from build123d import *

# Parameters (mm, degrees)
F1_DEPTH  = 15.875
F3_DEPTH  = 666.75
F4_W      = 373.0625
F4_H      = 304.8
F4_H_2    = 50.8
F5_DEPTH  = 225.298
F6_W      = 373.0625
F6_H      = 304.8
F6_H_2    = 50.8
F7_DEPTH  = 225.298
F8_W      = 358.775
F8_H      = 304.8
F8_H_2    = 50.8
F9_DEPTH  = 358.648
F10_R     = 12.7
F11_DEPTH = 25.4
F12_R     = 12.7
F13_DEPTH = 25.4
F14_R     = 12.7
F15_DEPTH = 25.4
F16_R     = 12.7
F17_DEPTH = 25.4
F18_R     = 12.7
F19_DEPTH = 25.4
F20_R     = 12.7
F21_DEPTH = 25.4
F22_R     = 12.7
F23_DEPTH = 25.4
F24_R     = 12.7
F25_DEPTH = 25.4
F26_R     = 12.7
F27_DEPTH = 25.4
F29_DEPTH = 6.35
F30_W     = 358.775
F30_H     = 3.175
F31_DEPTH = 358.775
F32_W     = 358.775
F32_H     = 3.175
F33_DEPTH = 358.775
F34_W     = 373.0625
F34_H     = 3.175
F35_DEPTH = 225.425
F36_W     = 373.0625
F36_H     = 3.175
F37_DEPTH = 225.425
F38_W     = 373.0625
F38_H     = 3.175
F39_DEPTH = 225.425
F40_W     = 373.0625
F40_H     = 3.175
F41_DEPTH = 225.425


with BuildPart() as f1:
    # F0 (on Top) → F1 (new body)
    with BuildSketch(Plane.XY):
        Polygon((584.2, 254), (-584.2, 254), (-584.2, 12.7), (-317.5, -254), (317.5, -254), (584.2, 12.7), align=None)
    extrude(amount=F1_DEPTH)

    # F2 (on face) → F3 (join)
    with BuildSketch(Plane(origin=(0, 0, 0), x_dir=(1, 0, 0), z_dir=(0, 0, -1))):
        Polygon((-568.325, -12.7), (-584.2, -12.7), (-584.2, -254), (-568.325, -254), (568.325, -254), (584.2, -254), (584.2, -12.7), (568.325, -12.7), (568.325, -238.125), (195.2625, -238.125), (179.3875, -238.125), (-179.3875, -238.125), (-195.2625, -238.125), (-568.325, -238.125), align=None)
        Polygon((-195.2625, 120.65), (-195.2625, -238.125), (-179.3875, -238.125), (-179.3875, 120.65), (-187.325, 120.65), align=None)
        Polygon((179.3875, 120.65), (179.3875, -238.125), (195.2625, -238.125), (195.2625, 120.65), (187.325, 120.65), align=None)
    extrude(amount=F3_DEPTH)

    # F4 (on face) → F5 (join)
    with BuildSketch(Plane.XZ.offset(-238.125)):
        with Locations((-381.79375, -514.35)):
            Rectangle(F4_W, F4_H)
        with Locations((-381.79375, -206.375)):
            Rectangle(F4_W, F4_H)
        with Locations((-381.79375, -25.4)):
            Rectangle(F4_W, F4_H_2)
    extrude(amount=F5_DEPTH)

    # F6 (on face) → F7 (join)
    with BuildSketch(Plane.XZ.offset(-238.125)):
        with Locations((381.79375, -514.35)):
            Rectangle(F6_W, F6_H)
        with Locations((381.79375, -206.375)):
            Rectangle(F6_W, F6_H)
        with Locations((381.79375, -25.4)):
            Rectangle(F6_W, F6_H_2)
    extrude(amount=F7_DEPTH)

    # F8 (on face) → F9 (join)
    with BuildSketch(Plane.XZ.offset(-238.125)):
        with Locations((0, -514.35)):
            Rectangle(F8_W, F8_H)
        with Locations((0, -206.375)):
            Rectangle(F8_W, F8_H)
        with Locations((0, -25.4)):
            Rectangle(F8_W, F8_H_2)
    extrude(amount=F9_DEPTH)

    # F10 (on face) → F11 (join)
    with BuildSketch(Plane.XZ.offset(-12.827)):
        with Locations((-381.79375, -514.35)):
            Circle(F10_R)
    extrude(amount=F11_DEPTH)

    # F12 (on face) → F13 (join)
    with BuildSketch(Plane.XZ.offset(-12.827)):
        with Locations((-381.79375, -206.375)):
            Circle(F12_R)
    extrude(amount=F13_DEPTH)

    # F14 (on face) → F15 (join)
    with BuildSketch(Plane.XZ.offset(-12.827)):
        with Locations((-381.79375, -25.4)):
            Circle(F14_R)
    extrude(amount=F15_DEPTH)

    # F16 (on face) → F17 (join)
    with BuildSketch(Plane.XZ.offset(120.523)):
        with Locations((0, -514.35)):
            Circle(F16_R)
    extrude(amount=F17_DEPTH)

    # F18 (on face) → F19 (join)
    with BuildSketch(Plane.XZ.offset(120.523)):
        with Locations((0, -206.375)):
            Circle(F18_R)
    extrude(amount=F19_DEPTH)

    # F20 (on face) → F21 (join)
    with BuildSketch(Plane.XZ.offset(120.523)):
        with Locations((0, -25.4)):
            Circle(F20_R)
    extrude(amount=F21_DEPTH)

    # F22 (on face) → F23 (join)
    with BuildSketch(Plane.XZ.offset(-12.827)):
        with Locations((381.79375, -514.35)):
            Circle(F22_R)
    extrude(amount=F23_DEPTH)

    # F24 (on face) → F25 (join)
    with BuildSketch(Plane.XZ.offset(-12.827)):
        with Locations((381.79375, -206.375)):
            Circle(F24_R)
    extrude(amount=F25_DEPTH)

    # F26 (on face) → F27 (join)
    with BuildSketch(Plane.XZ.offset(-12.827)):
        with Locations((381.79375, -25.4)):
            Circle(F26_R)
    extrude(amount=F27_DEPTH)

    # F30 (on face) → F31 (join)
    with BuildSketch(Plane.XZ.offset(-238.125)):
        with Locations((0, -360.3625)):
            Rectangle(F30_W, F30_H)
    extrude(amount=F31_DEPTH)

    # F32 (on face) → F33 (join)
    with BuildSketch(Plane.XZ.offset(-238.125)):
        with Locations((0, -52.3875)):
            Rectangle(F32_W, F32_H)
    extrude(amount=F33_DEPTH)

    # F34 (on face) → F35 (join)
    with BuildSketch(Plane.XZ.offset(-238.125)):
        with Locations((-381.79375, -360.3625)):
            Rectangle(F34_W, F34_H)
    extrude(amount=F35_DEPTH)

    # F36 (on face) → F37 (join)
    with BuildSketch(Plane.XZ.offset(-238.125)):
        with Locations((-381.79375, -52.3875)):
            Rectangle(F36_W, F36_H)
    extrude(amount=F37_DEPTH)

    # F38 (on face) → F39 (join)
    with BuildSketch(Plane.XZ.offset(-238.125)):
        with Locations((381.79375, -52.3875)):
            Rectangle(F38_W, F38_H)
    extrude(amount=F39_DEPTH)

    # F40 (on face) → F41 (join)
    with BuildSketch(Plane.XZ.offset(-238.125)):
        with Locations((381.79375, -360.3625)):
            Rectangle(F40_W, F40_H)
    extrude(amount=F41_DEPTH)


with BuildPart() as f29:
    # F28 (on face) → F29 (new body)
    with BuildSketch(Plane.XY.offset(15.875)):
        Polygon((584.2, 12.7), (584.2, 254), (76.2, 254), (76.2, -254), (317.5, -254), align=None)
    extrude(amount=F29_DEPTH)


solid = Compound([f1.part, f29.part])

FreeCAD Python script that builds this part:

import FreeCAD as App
import Part
import Sketcher

V = App.Vector
Q = App.Units.Quantity

doc = App.newDocument("Part")
params = doc.addObject("Spreadsheet::Sheet", "Params")
for row, (alias, value) in enumerate([
    ("sketch1_width", "46 in"),
    ("sketch1_width2", "25 in"),
    ("sketch1_height", "9.5 in"),
    ("pad1_length", "0.625 in"),
    ("sketch2_width", "46 in"),
    ("sketch2_height", "9.5 in"),
    ("sketch2_width2", "0.625 in"),
    ("sketch2_width3", "14.6875 in"),
    ("sketch2_height2", "8.875 in"),
    ("pad2_length", "26.25 in"),
    ("sketch3_height", "12 in"),
    ("sketch3_height2", "2 in"),
    ("sketch3_width", "14.6875 in"),
    ("pad3_length", "8.87 in"),
    ("sketch4_height", "12 in"),
    ("sketch4_height2", "2 in"),
    ("sketch4_width", "14.6875 in"),
    ("pad4_length", "8.87 in"),
    ("sketch5_height", "12 in"),
    ("sketch5_height2", "2 in"),
    ("sketch5_width", "14.125 in"),
    ("pad5_length", "14.12 in"),
    ("sketch6_diameter", "1 in"),
    ("pad6_length", "1 in"),
    ("sketch7_diameter", "1 in"),
    ("pad7_length", "1 in"),
    ("sketch8_diameter", "1 in"),
    ("pad8_length", "1 in"),
    ("sketch9_diameter", "1 in"),
    ("pad9_length", "1 in"),
    ("sketch10_diameter", "1 in"),
    ("pad10_length", "1 in"),
    ("sketch11_diameter", "1 in"),
    ("pad11_length", "1 in"),
    ("sketch12_diameter", "1 in"),
    ("pad12_length", "1 in"),
    ("sketch13_diameter", "1 in"),
    ("pad13_length", "1 in"),
    ("sketch14_diameter", "1 in"),
    ("pad14_length", "1 in"),
    ("sketch15_width", "14.125 in"),
    ("sketch15_height", "0.125 in"),
    ("pad15_length", "14.125 in"),
    ("sketch16_width", "14.125 in"),
    ("sketch16_height", "0.125 in"),
    ("pad16_length", "14.125 in"),
    ("sketch17_width", "14.6875 in"),
    ("sketch17_height", "0.125 in"),
    ("pad17_length", "8.875 in"),
    ("sketch18_width", "14.6875 in"),
    ("sketch18_height", "0.125 in"),
    ("pad18_length", "8.875 in"),
    ("sketch19_width", "14.6875 in"),
    ("sketch19_height", "0.125 in"),
    ("pad19_length", "8.875 in"),
    ("sketch20_width", "14.6875 in"),
    ("sketch20_height", "0.125 in"),
    ("pad20_length", "8.875 in"),
    ("sketch21_width", "20 in"),
    ("sketch21_width2", "9.5 in"),
    ("pad21_length", "0.25 in"),
], start=1):
    params.set(f"A{row}", alias)
    params.set(f"B{row}", "=" + value)
    params.setAlias(f"B{row}", alias)

body = doc.addObject("PartDesign::Body", "Body")

sketch1 = body.newObject("Sketcher::SketchObject", "Sketch")
sketch1.AttachmentSupport = (doc.getObject("XY_Plane"), [""])
sketch1.MapMode = "FlatFace"
sketch1.addGeometry(Part.LineSegment(V(584, 254, 0), V(-584, 254, 0)), False)
sketch1.addGeometry(Part.LineSegment(V(-584, 254, 0), V(-584, 13, 0)), False)
sketch1.addGeometry(Part.LineSegment(V(-584, 13, 0), V(-318, -254, 0)), False)
sketch1.addGeometry(Part.LineSegment(V(-318, -254, 0), V(318, -254, 0)), False)
sketch1.addGeometry(Part.LineSegment(V(318, -254, 0), V(584, 13, 0)), False)
sketch1.addGeometry(Part.LineSegment(V(584, 13, 0), V(584, 254, 0)), False)
sketch1.addConstraint(Sketcher.Constraint("Coincident", 0, 2, 1, 1))
sketch1.addConstraint(Sketcher.Constraint("Coincident", 1, 2, 2, 1))
sketch1.addConstraint(Sketcher.Constraint("Coincident", 2, 2, 3, 1))
sketch1.addConstraint(Sketcher.Constraint("Coincident", 3, 2, 4, 1))
sketch1.addConstraint(Sketcher.Constraint("Coincident", 4, 2, 5, 1))
sketch1.addConstraint(Sketcher.Constraint("Coincident", 5, 2, 0, 1))
sketch1.addConstraint(Sketcher.Constraint("Horizontal", 0))
sketch1.addConstraint(Sketcher.Constraint("Vertical", 1))
sketch1.addConstraint(Sketcher.Constraint("Horizontal", 3))
sketch1.addConstraint(Sketcher.Constraint("Vertical", 5))
sketch1.addConstraint(Sketcher.Constraint("Symmetric", 1, 2, 4, 2, -2))
sketch1.addConstraint(Sketcher.Constraint("Perpendicular", 2, 4))
sketch1.addConstraint(Sketcher.Constraint("Equal", 2, 4))
sketch1.addConstraint(Sketcher.Constraint("DistanceX", 0, 2, 0, 1, Q("46 in")))
sketch1.addConstraint(Sketcher.Constraint("DistanceX", 3, 1, 3, 2, Q("25 in")))
sketch1.addConstraint(Sketcher.Constraint("DistanceY", 1, 2, 1, 1, Q("9.5 in")))
sketch1.addConstraint(Sketcher.Constraint("DistanceY", -1, 1, 0, 2, Q("10 in")))
sketch1.setExpression("Constraints[13]", "Params.sketch1_width")
sketch1.setExpression("Constraints[14]", "Params.sketch1_width2")
sketch1.setExpression("Constraints[15]", "Params.sketch1_height")
pad1 = body.newObject("PartDesign::Pad", "Pad")
pad1.Profile = sketch1
pad1.setExpression("Length", "Params.pad1_length")

sketch2 = body.newObject("Sketcher::SketchObject", "Sketch001")
sketch2.AttachmentSupport = (doc.getObject("XY_Plane"), [""])
sketch2.MapMode = "FlatFace"
sketch2.addGeometry(Part.LineSegment(V(-568, 13, 0), V(-584, 13, 0)), False)
sketch2.addGeometry(Part.LineSegment(V(-584, 13, 0), V(-584, 254, 0)), False)
sketch2.addGeometry(Part.LineSegment(V(-584, 254, 0), V(584, 254, 0)), False)
sketch2.addGeometry(Part.LineSegment(V(584, 254, 0), V(584, 13, 0)), False)
sketch2.addGeometry(Part.LineSegment(V(584, 13, 0), V(568, 13, 0)), False)
sketch2.addGeometry(Part.LineSegment(V(568, 13, 0), V(568, 238, 0)), False)
sketch2.addGeometry(Part.LineSegment(V(568, 238, 0), V(195, 238, 0)), False)
sketch2.addGeometry(Part.LineSegment(V(195, 238, 0), V(195, -121, 0)), False)
sketch2.addGeometry(Part.LineSegment(V(195, -121, 0), V(179, -121, 0)), False)
sketch2.addGeometry(Part.LineSegment(V(179, -121, 0), V(179, 238, 0)), False)
sketch2.addGeometry(Part.LineSegment(V(179, 238, 0), V(-179, 238, 0)), False)
sketch2.addGeometry(Part.LineSegment(V(-179, 238, 0), V(-179, -121, 0)), False)
sketch2.addGeometry(Part.LineSegment(V(-179, -121, 0), V(-195, -121, 0)), False)
sketch2.addGeometry(Part.LineSegment(V(-195, -121, 0), V(-195, 238, 0)), False)
sketch2.addGeometry(Part.LineSegment(V(-195, 238, 0), V(-568, 238, 0)), False)
sketch2.addGeometry(Part.LineSegment(V(-568, 238, 0), V(-568, 13, 0)), False)
sketch2.addConstraint(Sketcher.Constraint("Coincident", 0, 2, 1, 1))
sketch2.addConstraint(Sketcher.Constraint("Coincident", 1, 2, 2, 1))
sketch2.addConstraint(Sketcher.Constraint("Coincident", 2, 2, 3, 1))
sketch2.addConstraint(Sketcher.Constraint("Coincident", 3, 2, 4, 1))
sketch2.addConstraint(Sketcher.Constraint("Coincident", 4, 2, 5, 1))
sketch2.addConstraint(Sketcher.Constraint("Coincident", 5, 2, 6, 1))
sketch2.addConstraint(Sketcher.Constraint("Coincident", 6, 2, 7, 1))
sketch2.addConstraint(Sketcher.Constraint("Coincident", 7, 2, 8, 1))
sketch2.addConstraint(Sketcher.Constraint("Coincident", 8, 2, 9, 1))
sketch2.addConstraint(Sketcher.Constraint("Coincident", 9, 2, 10, 1))
sketch2.addConstraint(Sketcher.Constraint("Coincident", 10, 2, 11, 1))
sketch2.addConstraint(Sketcher.Constraint("Coincident", 11, 2, 12, 1))
sketch2.addConstraint(Sketcher.Constraint("Coincident", 12, 2, 13, 1))
sketch2.addConstraint(Sketcher.Constraint("Coincident", 13, 2, 14, 1))
sketch2.addConstraint(Sketcher.Constraint("Coincident", 14, 2, 15, 1))
sketch2.addConstraint(Sketcher.Constraint("Coincident", 15, 2, 0, 1))
sketch2.addConstraint(Sketcher.Constraint("Horizontal", 0))
sketch2.addConstraint(Sketcher.Constraint("Vertical", 1))
sketch2.addConstraint(Sketcher.Constraint("Horizontal", 2))
sketch2.addConstraint(Sketcher.Constraint("Vertical", 3))
sketch2.addConstraint(Sketcher.Constraint("Horizontal", 4))
sketch2.addConstraint(Sketcher.Constraint("Vertical", 5))
sketch2.addConstraint(Sketcher.Constraint("Horizontal", 6))
sketch2.addConstraint(Sketcher.Constraint("Vertical", 7))
sketch2.addConstraint(Sketcher.Constraint("Horizontal", 8))
sketch2.addConstraint(Sketcher.Constraint("Vertical", 9))
sketch2.addConstraint(Sketcher.Constraint("Horizontal", 10))
sketch2.addConstraint(Sketcher.Constraint("Vertical", 11))
sketch2.addConstraint(Sketcher.Constraint("Horizontal", 12))
sketch2.addConstraint(Sketcher.Constraint("Vertical", 13))
sketch2.addConstraint(Sketcher.Constraint("Horizontal", 14))
sketch2.addConstraint(Sketcher.Constraint("Vertical", 15))
sketch2.addConstraint(Sketcher.Constraint("Symmetric", 0, 2, 3, 2, -2))
sketch2.addConstraint(Sketcher.Constraint("Symmetric", 8, 2, 11, 2, -2))
sketch2.addConstraint(Sketcher.Constraint("Symmetric", 6, 2, 13, 2, -2))
sketch2.addConstraint(Sketcher.Constraint("Horizontal", 6, 2, 9, 2))
sketch2.addConstraint(Sketcher.Constraint("Equal", 0, 4))
sketch2.addConstraint(Sketcher.Constraint("Equal", 4, 8))
sketch2.addConstraint(Sketcher.Constraint("Equal", 10, 7))
sketch2.addConstraint(Sketcher.Constraint("DistanceX", 2, 1, 2, 2, Q("46 in")))
sketch2.addConstraint(Sketcher.Constraint("DistanceY", 1, 1, 1, 2, Q("9.5 in")))
sketch2.addConstraint(Sketcher.Constraint("DistanceY", -1, 1, 1, 2, Q("10 in")))
sketch2.addConstraint(Sketcher.Constraint("DistanceX", 0, 2, 0, 1, Q("0.625 in")))
sketch2.addConstraint(Sketcher.Constraint("DistanceX", 6, 2, 6, 1, Q("14.6875 in")))
sketch2.addConstraint(Sketcher.Constraint("DistanceY", 5, 1, 5, 2, Q("8.875 in")))
sketch2.setExpression("Constraints[39]", "Params.sketch2_width")
sketch2.setExpression("Constraints[40]", "Params.sketch2_height")
sketch2.setExpression("Constraints[42]", "Params.sketch2_width2")
sketch2.setExpression("Constraints[43]", "Params.sketch2_width3")
sketch2.setExpression("Constraints[44]", "Params.sketch2_height2")
pad2 = body.newObject("PartDesign::Pad", "Pad001")
pad2.Profile = sketch2
pad2.setExpression("Length", "Params.pad2_length")
pad2.Reversed = True

sketch3 = body.newObject("Sketcher::SketchObject", "Sketch002")
sketch3.AttachmentSupport = (doc.getObject("XZ_Plane"), [""])
sketch3.MapMode = "FlatFace"
sketch3.AttachmentOffset = App.Placement(V(0, 0, -9.375 * 25.4), App.Rotation())
sketch3.addGeometry(Part.LineSegment(V(-568, -362, 0), V(-568, -667, 0)), False)
sketch3.addGeometry(Part.LineSegment(V(-568, -667, 0), V(-195, -667, 0)), False)
sketch3.addGeometry(Part.LineSegment(V(-195, -667, 0), V(-195, -362, 0)), False)
sketch3.addGeometry(Part.LineSegment(V(-195, -362, 0), V(-568, -362, 0)), False)
sketch3.addGeometry(Part.LineSegment(V(-568, -54, 0), V(-568, -359, 0)), False)
sketch3.addGeometry(Part.LineSegment(V(-568, -359, 0), V(-195, -359, 0)), False)
sketch3.addGeometry(Part.LineSegment(V(-195, -359, 0), V(-195, -54, 0)), False)
sketch3.addGeometry(Part.LineSegment(V(-195, -54, 0), V(-568, -54, 0)), False)
sketch3.addGeometry(Part.LineSegment(V(-568, 0, 0), V(-568, -51, 0)), False)
sketch3.addGeometry(Part.LineSegment(V(-568, -51, 0), V(-195, -51, 0)), False)
sketch3.addGeometry(Part.LineSegment(V(-195, -51, 0), V(-195, 0, 0)), False)
sketch3.addGeometry(Part.LineSegment(V(-195, 0, 0), V(-568, 0, 0)), False)
sketch3.addConstraint(Sketcher.Constraint("Coincident", 0, 2, 1, 1))
sketch3.addConstraint(Sketcher.Constraint("Coincident", 1, 2, 2, 1))
sketch3.addConstraint(Sketcher.Constraint("Coincident", 2, 2, 3, 1))
sketch3.addConstraint(Sketcher.Constraint("Coincident", 3, 2, 0, 1))
sketch3.addConstraint(Sketcher.Constraint("Coincident", 4, 2, 5, 1))
sketch3.addConstraint(Sketcher.Constraint("Coincident", 5, 2, 6, 1))
sketch3.addConstraint(Sketcher.Constraint("Coincident", 6, 2, 7, 1))
sketch3.addConstraint(Sketcher.Constraint("Coincident", 7, 2, 4, 1))
sketch3.addConstraint(Sketcher.Constraint("Coincident", 8, 2, 9, 1))
sketch3.addConstraint(Sketcher.Constraint("Coincident", 9, 2, 10, 1))
sketch3.addConstraint(Sketcher.Constraint("Coincident", 10, 2, 11, 1))
sketch3.addConstraint(Sketcher.Constraint("Coincident", 11, 2, 8, 1))
sketch3.addConstraint(Sketcher.Constraint("Vertical", 0))
sketch3.addConstraint(Sketcher.Constraint("Horizontal", 1))
sketch3.addConstraint(Sketcher.Constraint("Vertical", 2))
sketch3.addConstraint(Sketcher.Constraint("Horizontal", 3))
sketch3.addConstraint(Sketcher.Constraint("Vertical", 4))
sketch3.addConstraint(Sketcher.Constraint("Horizontal", 5))
sketch3.addConstraint(Sketcher.Constraint("Vertical", 6))
sketch3.addConstraint(Sketcher.Constraint("Horizontal", 7))
sketch3.addConstraint(Sketcher.Constraint("Vertical", 8))
sketch3.addConstraint(Sketcher.Constraint("Horizontal", 9))
sketch3.addConstraint(Sketcher.Constraint("Vertical", 10))
sketch3.addConstraint(Sketcher.Constraint("Horizontal", 11))
sketch3.addConstraint(Sketcher.Constraint("PointOnObject", 10, 2, -1))
sketch3.addConstraint(Sketcher.Constraint("Vertical", 3, 2, 4, 2))
sketch3.addConstraint(Sketcher.Constraint("Vertical", 2, 2, 5, 2))
sketch3.addConstraint(Sketcher.Constraint("Vertical", 7, 2, 8, 2))
sketch3.addConstraint(Sketcher.Constraint("Vertical", 6, 2, 9, 2))
sketch3.addConstraint(Sketcher.Constraint("Equal", 2, 4))
sketch3.addConstraint(Sketcher.Constraint("DistanceY", 0, 2, 0, 1, Q("12 in")))
sketch3.addConstraint(Sketcher.Constraint("DistanceY", 8, 2, 8, 1, Q("2 in")))
sketch3.addConstraint(Sketcher.Constraint("DistanceX", 1, 1, 1, 2, Q("14.6875 in")))
sketch3.addConstraint(Sketcher.Constraint("DistanceY", 0, 2, -1, 1, Q("26.25 in")))
sketch3.addConstraint(Sketcher.Constraint("DistanceX", 0, 2, -1, 1, Q("22.375 in")))
sketch3.addConstraint(Sketcher.Constraint("DistanceY", 4, 2, -1, 1, Q("14.125 in")))
sketch3.setExpression("Constraints[30]", "Params.sketch3_height")
sketch3.setExpression("Constraints[31]", "Params.sketch3_height2")
sketch3.setExpression("Constraints[32]", "Params.sketch3_width")
pad3 = body.newObject("PartDesign::Pad", "Pad002")
pad3.Profile = sketch3
pad3.setExpression("Length", "Params.pad3_length")

sketch4 = body.newObject("Sketcher::SketchObject", "Sketch003")
sketch4.AttachmentSupport = (doc.getObject("XZ_Plane"), [""])
sketch4.MapMode = "FlatFace"
sketch4.AttachmentOffset = App.Placement(V(0, 0, -9.375 * 25.4), App.Rotation())
sketch4.addGeometry(Part.LineSegment(V(195, -362, 0), V(195, -667, 0)), False)
sketch4.addGeometry(Part.LineSegment(V(195, -667, 0), V(568, -667, 0)), False)
sketch4.addGeometry(Part.LineSegment(V(568, -667, 0), V(568, -362, 0)), False)
sketch4.addGeometry(Part.LineSegment(V(568, -362, 0), V(195, -362, 0)), False)
sketch4.addGeometry(Part.LineSegment(V(195, -54, 0), V(195, -359, 0)), False)
sketch4.addGeometry(Part.LineSegment(V(195, -359, 0), V(568, -359, 0)), False)
sketch4.addGeometry(Part.LineSegment(V(568, -359, 0), V(568, -54, 0)), False)
sketch4.addGeometry(Part.LineSegment(V(568, -54, 0), V(195, -54, 0)), False)
sketch4.addGeometry(Part.LineSegment(V(195, 0, 0), V(195, -51, 0)), False)
sketch4.addGeometry(Part.LineSegment(V(195, -51, 0), V(568, -51, 0)), False)
sketch4.addGeometry(Part.LineSegment(V(568, -51, 0), V(568, 0, 0)), False)
sketch4.addGeometry(Part.LineSegment(V(568, 0, 0), V(195, 0, 0)), False)
sketch4.addConstraint(Sketcher.Constraint("Coincident", 0, 2, 1, 1))
sketch4.addConstraint(Sketcher.Constraint("Coincident", 1, 2, 2, 1))
sketch4.addConstraint(Sketcher.Constraint("Coincident", 2, 2, 3, 1))
sketch4.addConstraint(Sketcher.Constraint("Coincident", 3, 2, 0, 1))
sketch4.addConstraint(Sketcher.Constraint("Coincident", 4, 2, 5, 1))
sketch4.addConstraint(Sketcher.Constraint("Coincident", 5, 2, 6, 1))
sketch4.addConstraint(Sketcher.Constraint("Coincident", 6, 2, 7, 1))
sketch4.addConstraint(Sketcher.Constraint("Coincident", 7, 2, 4, 1))
sketch4.addConstraint(Sketcher.Constraint("Coincident", 8, 2, 9, 1))
sketch4.addConstraint(Sketcher.Constraint("Coincident", 9, 2, 10, 1))
sketch4.addConstraint(Sketcher.Constraint("Coincident", 10, 2, 11, 1))
sketch4.addConstraint(Sketcher.Constraint("Coincident", 11, 2, 8, 1))
sketch4.addConstraint(Sketcher.Constraint("Vertical", 0))
sketch4.addConstraint(Sketcher.Constraint("Horizontal", 1))
sketch4.addConstraint(Sketcher.Constraint("Vertical", 2))
sketch4.addConstraint(Sketcher.Constraint("Horizontal", 3))
sketch4.addConstraint(Sketcher.Constraint("Vertical", 4))
sketch4.addConstraint(Sketcher.Constraint("Horizontal", 5))
sketch4.addConstraint(Sketcher.Constraint("Vertical", 6))
sketch4.addConstraint(Sketcher.Constraint("Horizontal", 7))
sketch4.addConstraint(Sketcher.Constraint("Vertical", 8))
sketch4.addConstraint(Sketcher.Constraint("Horizontal", 9))
sketch4.addConstraint(Sketcher.Constraint("Vertical", 10))
sketch4.addConstraint(Sketcher.Constraint("Horizontal", 11))
sketch4.addConstraint(Sketcher.Constraint("PointOnObject", 10, 2, -1))
sketch4.addConstraint(Sketcher.Constraint("Vertical", 3, 2, 4, 2))
sketch4.addConstraint(Sketcher.Constraint("Vertical", 2, 2, 5, 2))
sketch4.addConstraint(Sketcher.Constraint("Vertical", 7, 2, 8, 2))
sketch4.addConstraint(Sketcher.Constraint("Vertical", 6, 2, 9, 2))
sketch4.addConstraint(Sketcher.Constraint("Equal", 2, 4))
sketch4.addConstraint(Sketcher.Constraint("DistanceY", 0, 2, 0, 1, Q("12 in")))
sketch4.addConstraint(Sketcher.Constraint("DistanceY", 8, 2, 8, 1, Q("2 in")))
sketch4.addConstraint(Sketcher.Constraint("DistanceX", 1, 1, 1, 2, Q("14.6875 in")))
sketch4.addConstraint(Sketcher.Constraint("DistanceY", 0, 2, -1, 1, Q("26.25 in")))
sketch4.addConstraint(Sketcher.Constraint("DistanceX", -1, 1, 0, 2, Q("7.6875 in")))
sketch4.addConstraint(Sketcher.Constraint("DistanceY", 4, 2, -1, 1, Q("14.125 in")))
sketch4.setExpression("Constraints[30]", "Params.sketch4_height")
sketch4.setExpression("Constraints[31]", "Params.sketch4_height2")
sketch4.setExpression("Constraints[32]", "Params.sketch4_width")
pad4 = body.newObject("PartDesign::Pad", "Pad003")
pad4.Profile = sketch4
pad4.setExpression("Length", "Params.pad4_length")

sketch5 = body.newObject("Sketcher::SketchObject", "Sketch004")
sketch5.AttachmentSupport = (doc.getObject("XZ_Plane"), [""])
sketch5.MapMode = "FlatFace"
sketch5.AttachmentOffset = App.Placement(V(0, 0, -9.375 * 25.4), App.Rotation())
sketch5.addGeometry(Part.LineSegment(V(-179, -362, 0), V(-179, -667, 0)), False)
sketch5.addGeometry(Part.LineSegment(V(-179, -667, 0), V(179, -667, 0)), False)
sketch5.addGeometry(Part.LineSegment(V(179, -667, 0), V(179, -362, 0)), False)
sketch5.addGeometry(Part.LineSegment(V(179, -362, 0), V(-179, -362, 0)), False)
sketch5.addGeometry(Part.LineSegment(V(-179, -54, 0), V(-179, -359, 0)), False)
sketch5.addGeometry(Part.LineSegment(V(-179, -359, 0), V(179, -359, 0)), False)
sketch5.addGeometry(Part.LineSegment(V(179, -359, 0), V(179, -54, 0)), False)
sketch5.addGeometry(Part.LineSegment(V(179, -54, 0), V(-179, -54, 0)), False)
sketch5.addGeometry(Part.LineSegment(V(-179, 0, 0), V(-179, -51, 0)), False)
sketch5.addGeometry(Part.LineSegment(V(-179, -51, 0), V(179, -51, 0)), False)
sketch5.addGeometry(Part.LineSegment(V(179, -51, 0), V(179, 0, 0)), False)
sketch5.addGeometry(Part.LineSegment(V(179, 0, 0), V(-179, 0, 0)), False)
sketch5.addConstraint(Sketcher.Constraint("Coincident", 0, 2, 1, 1))
sketch5.addConstraint(Sketcher.Constraint("Coincident", 1, 2, 2, 1))
sketch5.addConstraint(Sketcher.Constraint("Coincident", 2, 2, 3, 1))
sketch5.addConstraint(Sketcher.Constraint("Coincident", 3, 2, 0, 1))
sketch5.addConstraint(Sketcher.Constraint("Coincident", 4, 2, 5, 1))
sketch5.addConstraint(Sketcher.Constraint("Coincident", 5, 2, 6, 1))
sketch5.addConstraint(Sketcher.Constraint("Coincident", 6, 2, 7, 1))
sketch5.addConstraint(Sketcher.Constraint("Coincident", 7, 2, 4, 1))
sketch5.addConstraint(Sketcher.Constraint("Coincident", 8, 2, 9, 1))
sketch5.addConstraint(Sketcher.Constraint("Coincident", 9, 2, 10, 1))
sketch5.addConstraint(Sketcher.Constraint("Coincident", 10, 2, 11, 1))
sketch5.addConstraint(Sketcher.Constraint("Coincident", 11, 2, 8, 1))
sketch5.addConstraint(Sketcher.Constraint("Vertical", 0))
sketch5.addConstraint(Sketcher.Constraint("Horizontal", 1))
sketch5.addConstraint(Sketcher.Constraint("Vertical", 2))
sketch5.addConstraint(Sketcher.Constraint("Horizontal", 3))
sketch5.addConstraint(Sketcher.Constraint("Vertical", 4))
sketch5.addConstraint(Sketcher.Constraint("Horizontal", 5))
sketch5.addConstraint(Sketcher.Constraint("Vertical", 6))
sketch5.addConstraint(Sketcher.Constraint("Horizontal", 7))
sketch5.addConstraint(Sketcher.Constraint("Vertical", 8))
sketch5.addConstraint(Sketcher.Constraint("Horizontal", 9))
sketch5.addConstraint(Sketcher.Constraint("Vertical", 10))
sketch5.addConstraint(Sketcher.Constraint("Horizontal", 11))
sketch5.addConstraint(Sketcher.Constraint("Symmetric", 10, 2, 11, 2, -1, 1))
sketch5.addConstraint(Sketcher.Constraint("Vertical", 3, 2, 4, 2))
sketch5.addConstraint(Sketcher.Constraint("Vertical", 2, 2, 5, 2))
sketch5.addConstraint(Sketcher.Constraint("Vertical", 7, 2, 8, 2))
sketch5.addConstraint(Sketcher.Constraint("Vertical", 6, 2, 9, 2))
sketch5.addConstraint(Sketcher.Constraint("Equal", 2, 4))
sketch5.addConstraint(Sketcher.Constraint("DistanceY", 0, 2, 0, 1, Q("12 in")))
sketch5.addConstraint(Sketcher.Constraint("DistanceY", 8, 2, 8, 1, Q("2 in")))
sketch5.addConstraint(Sketcher.Constraint("DistanceX", 1, 1, 1, 2, Q("14.125 in")))
sketch5.addConstraint(Sketcher.Constraint("DistanceY", 0, 2, -1, 1, Q("26.25 in")))
sketch5.addConstraint(Sketcher.Constraint("DistanceY", 4, 2, -1, 1, Q("14.125 in")))
sketch5.setExpression("Constraints[30]", "Params.sketch5_height")
sketch5.setExpression("Constraints[31]", "Params.sketch5_height2")
sketch5.setExpression("Constraints[32]", "Params.sketch5_width")
pad5 = body.newObject("PartDesign::Pad", "Pad004")
pad5.Profile = sketch5
pad5.setExpression("Length", "Params.pad5_length")

sketch6 = body.newObject("Sketcher::SketchObject", "Sketch005")
sketch6.AttachmentSupport = (doc.getObject("XZ_Plane"), [""])
sketch6.MapMode = "FlatFace"
sketch6.AttachmentOffset = App.Placement(V(0, 0, -0.505 * 25.4), App.Rotation())
sketch6.addGeometry(Part.Circle(V(-382, -514, 0), V(0, 0, 1), 13), False)
sketch6.addConstraint(Sketcher.Constraint("Diameter", 0, Q("1 in")))
sketch6.addConstraint(Sketcher.Constraint("DistanceY", 0, 3, -1, 1, Q("20.25 in")))
sketch6.addConstraint(Sketcher.Constraint("DistanceX", 0, 3, -1, 1, Q("15.03125 in")))
sketch6.setExpression("Constraints[0]", "Params.sketch6_diameter")
pad6 = body.newObject("PartDesign::Pad", "Pad005")
pad6.Profile = sketch6
pad6.setExpression("Length", "Params.pad6_length")

sketch7 = body.newObject("Sketcher::SketchObject", "Sketch006")
sketch7.AttachmentSupport = (doc.getObject("XZ_Plane"), [""])
sketch7.MapMode = "FlatFace"
sketch7.AttachmentOffset = App.Placement(V(0, 0, -0.505 * 25.4), App.Rotation())
sketch7.addGeometry(Part.Circle(V(-382, -206, 0), V(0, 0, 1), 13), False)
sketch7.addConstraint(Sketcher.Constraint("Diameter", 0, Q("1 in")))
sketch7.addConstraint(Sketcher.Constraint("DistanceX", 0, 3, -1, 1, Q("15.03125 in")))
sketch7.addConstraint(Sketcher.Constraint("DistanceY", 0, 3, -1, 1, Q("8.125 in")))
sketch7.setExpression("Constraints[0]", "Params.sketch7_diameter")
pad7 = body.newObject("PartDesign::Pad", "Pad006")
pad7.Profile = sketch7
pad7.setExpression("Length", "Params.pad7_length")

sketch8 = body.newObject("Sketcher::SketchObject", "Sketch007")
sketch8.AttachmentSupport = (doc.getObject("XZ_Plane"), [""])
sketch8.MapMode = "FlatFace"
sketch8.AttachmentOffset = App.Placement(V(0, 0, -0.505 * 25.4), App.Rotation())
sketch8.addGeometry(Part.Circle(V(-382, -25, 0), V(0, 0, 1), 13), False)
sketch8.addConstraint(Sketcher.Constraint("Diameter", 0, Q("1 in")))
sketch8.addConstraint(Sketcher.Constraint("DistanceY", 0, 3, -1, 1, Q("1 in")))
sketch8.addConstraint(Sketcher.Constraint("DistanceX", 0, 3, -1, 1, Q("15.03125 in")))
sketch8.setExpression("Constraints[0]", "Params.sketch8_diameter")
pad8 = body.newObject("PartDesign::Pad", "Pad007")
pad8.Profile = sketch8
pad8.setExpression("Length", "Params.pad8_length")

sketch9 = body.newObject("Sketcher::SketchObject", "Sketch008")
sketch9.AttachmentSupport = (doc.getObject("XZ_Plane"), [""])
sketch9.MapMode = "FlatFace"
sketch9.AttachmentOffset = App.Placement(V(0, 0, 4.745 * 25.4), App.Rotation())
sketch9.addGeometry(Part.Circle(V(0, -514, 0), V(0, 0, 1), 13), False)
sketch9.addConstraint(Sketcher.Constraint("PointOnObject", 0, 3, -2))
sketch9.addConstraint(Sketcher.Constraint("Diameter", 0, Q("1 in")))
sketch9.addConstraint(Sketcher.Constraint("DistanceY", 0, 3, -1, 1, Q("20.25 in")))
sketch9.setExpression("Constraints[1]", "Params.sketch9_diameter")
pad9 = body.newObject("PartDesign::Pad", "Pad008")
pad9.Profile = sketch9
pad9.setExpression("Length", "Params.pad9_length")

sketch10 = body.newObject("Sketcher::SketchObject", "Sketch009")
sketch10.AttachmentSupport = (doc.getObject("XZ_Plane"), [""])
sketch10.MapMode = "FlatFace"
sketch10.AttachmentOffset = App.Placement(V(0, 0, 4.745 * 25.4), App.Rotation())
sketch10.addGeometry(Part.Circle(V(0, -206, 0), V(0, 0, 1), 13), False)
sketch10.addConstraint(Sketcher.Constraint("PointOnObject", 0, 3, -2))
sketch10.addConstraint(Sketcher.Constraint("Diameter", 0, Q("1 in")))
sketch10.addConstraint(Sketcher.Constraint("DistanceY", 0, 3, -1, 1, Q("8.125 in")))
sketch10.setExpression("Constraints[1]", "Params.sketch10_diameter")
pad10 = body.newObject("PartDesign::Pad", "Pad009")
pad10.Profile = sketch10
pad10.setExpression("Length", "Params.pad10_length")

sketch11 = body.newObject("Sketcher::SketchObject", "Sketch010")
sketch11.AttachmentSupport = (doc.getObject("XZ_Plane"), [""])
sketch11.MapMode = "FlatFace"
sketch11.AttachmentOffset = App.Placement(V(0, 0, 4.745 * 25.4), App.Rotation())
sketch11.addGeometry(Part.Circle(V(0, -25, 0), V(0, 0, 1), 13), False)
sketch11.addConstraint(Sketcher.Constraint("PointOnObject", 0, 3, -2))
sketch11.addConstraint(Sketcher.Constraint("Diameter", 0, Q("1 in")))
sketch11.addConstraint(Sketcher.Constraint("DistanceY", 0, 3, -1, 1, Q("1 in")))
sketch11.setExpression("Constraints[1]", "Params.sketch11_diameter")
pad11 = body.newObject("PartDesign::Pad", "Pad010")
pad11.Profile = sketch11
pad11.setExpression("Length", "Params.pad11_length")

sketch12 = body.newObject("Sketcher::SketchObject", "Sketch011")
sketch12.AttachmentSupport = (doc.getObject("XZ_Plane"), [""])
sketch12.MapMode = "FlatFace"
sketch12.AttachmentOffset = App.Placement(V(0, 0, -0.505 * 25.4), App.Rotation())
sketch12.addGeometry(Part.Circle(V(382, -514, 0), V(0, 0, 1), 13), False)
sketch12.addConstraint(Sketcher.Constraint("Diameter", 0, Q("1 in")))
sketch12.addConstraint(Sketcher.Constraint("DistanceY", 0, 3, -1, 1, Q("20.25 in")))
sketch12.addConstraint(Sketcher.Constraint("DistanceX", -1, 1, 0, 3, Q("15.03125 in")))
sketch12.setExpression("Constraints[0]", "Params.sketch12_diameter")
pad12 = body.newObject("PartDesign::Pad", "Pad011")
pad12.Profile = sketch12
pad12.setExpression("Length", "Params.pad12_length")

sketch13 = body.newObject("Sketcher::SketchObject", "Sketch012")
sketch13.AttachmentSupport = (doc.getObject("XZ_Plane"), [""])
sketch13.MapMode = "FlatFace"
sketch13.AttachmentOffset = App.Placement(V(0, 0, -0.505 * 25.4), App.Rotation())
sketch13.addGeometry(Part.Circle(V(382, -206, 0), V(0, 0, 1), 13), False)
sketch13.addConstraint(Sketcher.Constraint("Diameter", 0, Q("1 in")))
sketch13.addConstraint(Sketcher.Constraint("DistanceX", -1, 1, 0, 3, Q("15.03125 in")))
sketch13.addConstraint(Sketcher.Constraint("DistanceY", 0, 3, -1, 1, Q("8.125 in")))
sketch13.setExpression("Constraints[0]", "Params.sketch13_diameter")
pad13 = body.newObject("PartDesign::Pad", "Pad012")
pad13.Profile = sketch13
pad13.setExpression("Length", "Params.pad13_length")

sketch14 = body.newObject("Sketcher::SketchObject", "Sketch013")
sketch14.AttachmentSupport = (doc.getObject("XZ_Plane"), [""])
sketch14.MapMode = "FlatFace"
sketch14.AttachmentOffset = App.Placement(V(0, 0, -0.505 * 25.4), App.Rotation())
sketch14.addGeometry(Part.Circle(V(382, -25, 0), V(0, 0, 1), 13), False)
sketch14.addConstraint(Sketcher.Constraint("Diameter", 0, Q("1 in")))
sketch14.addConstraint(Sketcher.Constraint("DistanceY", 0, 3, -1, 1, Q("1 in")))
sketch14.addConstraint(Sketcher.Constraint("DistanceX", -1, 1, 0, 3, Q("15.03125 in")))
sketch14.setExpression("Constraints[0]", "Params.sketch14_diameter")
pad14 = body.newObject("PartDesign::Pad", "Pad013")
pad14.Profile = sketch14
pad14.setExpression("Length", "Params.pad14_length")

sketch15 = body.newObject("Sketcher::SketchObject", "Sketch014")
sketch15.AttachmentSupport = (doc.getObject("XZ_Plane"), [""])
sketch15.MapMode = "FlatFace"
sketch15.AttachmentOffset = App.Placement(V(0, 0, -9.375 * 25.4), App.Rotation())
sketch15.addGeometry(Part.LineSegment(V(-179.4, -358.8, 0), V(-179.4, -361.9, 0)), False)
sketch15.addGeometry(Part.LineSegment(V(-179.4, -361.9, 0), V(179.4, -361.9, 0)), False)
sketch15.addGeometry(Part.LineSegment(V(179.4, -361.9, 0), V(179.4, -358.8, 0)), False)
sketch15.addGeometry(Part.LineSegment(V(179.4, -358.8, 0), V(-179.4, -358.8, 0)), False)
sketch15.addConstraint(Sketcher.Constraint("Coincident", 0, 2, 1, 1))
sketch15.addConstraint(Sketcher.Constraint("Coincident", 1, 2, 2, 1))
sketch15.addConstraint(Sketcher.Constraint("Coincident", 2, 2, 3, 1))
sketch15.addConstraint(Sketcher.Constraint("Coincident", 3, 2, 0, 1))
sketch15.addConstraint(Sketcher.Constraint("Vertical", 0))
sketch15.addConstraint(Sketcher.Constraint("Horizontal", 1))
sketch15.addConstraint(Sketcher.Constraint("Vertical", 2))
sketch15.addConstraint(Sketcher.Constraint("Horizontal", 3))
sketch15.addConstraint(Sketcher.Constraint("DistanceX", 1, 1, 1, 2, Q("14.125 in")))
sketch15.addConstraint(Sketcher.Constraint("DistanceY", 0, 2, 0, 1, Q("0.125 in")))
sketch15.addConstraint(Sketcher.Constraint("DistanceY", 0, 2, -1, 1, Q("14.25 in")))
sketch15.addConstraint(Sketcher.Constraint("DistanceX", 0, 2, -1, 1, Q("7.0625 in")))
sketch15.setExpression("Constraints[8]", "Params.sketch15_width")
sketch15.setExpression("Constraints[9]", "Params.sketch15_height")
pad15 = body.newObject("PartDesign::Pad", "Pad014")
pad15.Profile = sketch15
pad15.setExpression("Length", "Params.pad15_length")

sketch16 = body.newObject("Sketcher::SketchObject", "Sketch015")
sketch16.AttachmentSupport = (doc.getObject("XZ_Plane"), [""])
sketch16.MapMode = "FlatFace"
sketch16.AttachmentOffset = App.Placement(V(0, 0, -9.375 * 25.4), App.Rotation())
sketch16.addGeometry(Part.LineSegment(V(-179.4, -50.8, 0), V(-179.4, -54, 0)), False)
sketch16.addGeometry(Part.LineSegment(V(-179.4, -54, 0), V(179.4, -54, 0)), False)
sketch16.addGeometry(Part.LineSegment(V(179.4, -54, 0), V(179.4, -50.8, 0)), False)
sketch16.addGeometry(Part.LineSegment(V(179.4, -50.8, 0), V(-179.4, -50.8, 0)), False)
sketch16.addConstraint(Sketcher.Constraint("Coincident", 0, 2, 1, 1))
sketch16.addConstraint(Sketcher.Constraint("Coincident", 1, 2, 2, 1))
sketch16.addConstraint(Sketcher.Constraint("Coincident", 2, 2, 3, 1))
sketch16.addConstraint(Sketcher.Constraint("Coincident", 3, 2, 0, 1))
sketch16.addConstraint(Sketcher.Constraint("Vertical", 0))
sketch16.addConstraint(Sketcher.Constraint("Horizontal", 1))
sketch16.addConstraint(Sketcher.Constraint("Vertical", 2))
sketch16.addConstraint(Sketcher.Constraint("Horizontal", 3))
sketch16.addConstraint(Sketcher.Constraint("DistanceY", 2, 2, -1, 1, Q("2 in")))
sketch16.addConstraint(Sketcher.Constraint("DistanceX", 1, 1, 1, 2, Q("14.125 in")))
sketch16.addConstraint(Sketcher.Constraint("DistanceY", 0, 2, 0, 1, Q("0.125 in")))
sketch16.addConstraint(Sketcher.Constraint("DistanceX", 0, 2, -1, 1, Q("7.0625 in")))
sketch16.setExpression("Constraints[9]", "Params.sketch16_width")
sketch16.setExpression("Constraints[10]", "Params.sketch16_height")
pad16 = body.newObject("PartDesign::Pad", "Pad015")
pad16.Profile = sketch16
pad16.setExpression("Length", "Params.pad16_length")

sketch17 = body.newObject("Sketcher::SketchObject", "Sketch016")
sketch17.AttachmentSupport = (doc.getObject("XZ_Plane"), [""])
sketch17.MapMode = "FlatFace"
sketch17.AttachmentOffset = App.Placement(V(0, 0, -9.375 * 25.4), App.Rotation())
sketch17.addGeometry(Part.LineSegment(V(-568.3, -358.8, 0), V(-568.3, -361.9, 0)), False)
sketch17.addGeometry(Part.LineSegment(V(-568.3, -361.9, 0), V(-195.3, -361.9, 0)), False)
sketch17.addGeometry(Part.LineSegment(V(-195.3, -361.9, 0), V(-195.3, -358.8, 0)), False)
sketch17.addGeometry(Part.LineSegment(V(-195.3, -358.8, 0), V(-568.3, -358.8, 0)), False)
sketch17.addConstraint(Sketcher.Constraint("Coincident", 0, 2, 1, 1))
sketch17.addConstraint(Sketcher.Constraint("Coincident", 1, 2, 2, 1))
sketch17.addConstraint(Sketcher.Constraint("Coincident", 2, 2, 3, 1))
sketch17.addConstraint(Sketcher.Constraint("Coincident", 3, 2, 0, 1))
sketch17.addConstraint(Sketcher.Constraint("Vertical", 0))
sketch17.addConstraint(Sketcher.Constraint("Horizontal", 1))
sketch17.addConstraint(Sketcher.Constraint("Vertical", 2))
sketch17.addConstraint(Sketcher.Constraint("Horizontal", 3))
sketch17.addConstraint(Sketcher.Constraint("DistanceX", 1, 1, 1, 2, Q("14.6875 in")))
sketch17.addConstraint(Sketcher.Constraint("DistanceY", 0, 2, 0, 1, Q("0.125 in")))
sketch17.addConstraint(Sketcher.Constraint("DistanceY", 0, 2, -1, 1, Q("14.25 in")))
sketch17.addConstraint(Sketcher.Constraint("DistanceX", 0, 2, -1, 1, Q("22.375 in")))
sketch17.setExpression("Constraints[8]", "Params.sketch17_width")
sketch17.setExpression("Constraints[9]", "Params.sketch17_height")
pad17 = body.newObject("PartDesign::Pad", "Pad016")
pad17.Profile = sketch17
pad17.setExpression("Length", "Params.pad17_length")

sketch18 = body.newObject("Sketcher::SketchObject", "Sketch017")
sketch18.AttachmentSupport = (doc.getObject("XZ_Plane"), [""])
sketch18.MapMode = "FlatFace"
sketch18.AttachmentOffset = App.Placement(V(0, 0, -9.375 * 25.4), App.Rotation())
sketch18.addGeometry(Part.LineSegment(V(-568.3, -50.8, 0), V(-568.3, -54, 0)), False)
sketch18.addGeometry(Part.LineSegment(V(-568.3, -54, 0), V(-195.3, -54, 0)), False)
sketch18.addGeometry(Part.LineSegment(V(-195.3, -54, 0), V(-195.3, -50.8, 0)), False)
sketch18.addGeometry(Part.LineSegment(V(-195.3, -50.8, 0), V(-568.3, -50.8, 0)), False)
sketch18.addConstraint(Sketcher.Constraint("Coincident", 0, 2, 1, 1))
sketch18.addConstraint(Sketcher.Constraint("Coincident", 1, 2, 2, 1))
sketch18.addConstraint(Sketcher.Constraint("Coincident", 2, 2, 3, 1))
sketch18.addConstraint(Sketcher.Constraint("Coincident", 3, 2, 0, 1))
sketch18.addConstraint(Sketcher.Constraint("Vertical", 0))
sketch18.addConstraint(Sketcher.Constraint("Horizontal", 1))
sketch18.addConstraint(Sketcher.Constraint("Vertical", 2))
sketch18.addConstraint(Sketcher.Constraint("Horizontal", 3))
sketch18.addConstraint(Sketcher.Constraint("DistanceY", 2, 2, -1, 1, Q("2 in")))
sketch18.addConstraint(Sketcher.Constraint("DistanceX", 1, 1, 1, 2, Q("14.6875 in")))
sketch18.addConstraint(Sketcher.Constraint("DistanceY", 0, 2, 0, 1, Q("0.125 in")))
sketch18.addConstraint(Sketcher.Constraint("DistanceX", 0, 2, -1, 1, Q("22.375 in")))
sketch18.setExpression("Constraints[9]", "Params.sketch18_width")
sketch18.setExpression("Constraints[10]", "Params.sketch18_height")
pad18 = body.newObject("PartDesign::Pad", "Pad017")
pad18.Profile = sketch18
pad18.setExpression("Length", "Params.pad18_length")

sketch19 = body.newObject("Sketcher::SketchObject", "Sketch018")
sketch19.AttachmentSupport = (doc.getObject("XZ_Plane"), [""])
sketch19.MapMode = "FlatFace"
sketch19.AttachmentOffset = App.Placement(V(0, 0, -9.375 * 25.4), App.Rotation())
sketch19.addGeometry(Part.LineSegment(V(195.3, -50.8, 0), V(195.3, -54, 0)), False)
sketch19.addGeometry(Part.LineSegment(V(195.3, -54, 0), V(568.3, -54, 0)), False)
sketch19.addGeometry(Part.LineSegment(V(568.3, -54, 0), V(568.3, -50.8, 0)), False)
sketch19.addGeometry(Part.LineSegment(V(568.3, -50.8, 0), V(195.3, -50.8, 0)), False)
sketch19.addConstraint(Sketcher.Constraint("Coincident", 0, 2, 1, 1))
sketch19.addConstraint(Sketcher.Constraint("Coincident", 1, 2, 2, 1))
sketch19.addConstraint(Sketcher.Constraint("Coincident", 2, 2, 3, 1))
sketch19.addConstraint(Sketcher.Constraint("Coincident", 3, 2, 0, 1))
sketch19.addConstraint(Sketcher.Constraint("Vertical", 0))
sketch19.addConstraint(Sketcher.Constraint("Horizontal", 1))
sketch19.addConstraint(Sketcher.Constraint("Vertical", 2))
sketch19.addConstraint(Sketcher.Constraint("Horizontal", 3))
sketch19.addConstraint(Sketcher.Constraint("DistanceY", 2, 2, -1, 1, Q("2 in")))
sketch19.addConstraint(Sketcher.Constraint("DistanceX", 1, 1, 1, 2, Q("14.6875 in")))
sketch19.addConstraint(Sketcher.Constraint("DistanceY", 0, 2, 0, 1, Q("0.125 in")))
sketch19.addConstraint(Sketcher.Constraint("DistanceX", -1, 1, 0, 2, Q("7.6875 in")))
sketch19.setExpression("Constraints[9]", "Params.sketch19_width")
sketch19.setExpression("Constraints[10]", "Params.sketch19_height")
pad19 = body.newObject("PartDesign::Pad", "Pad018")
pad19.Profile = sketch19
pad19.setExpression("Length", "Params.pad19_length")

sketch20 = body.newObject("Sketcher::SketchObject", "Sketch019")
sketch20.AttachmentSupport = (doc.getObject("XZ_Plane"), [""])
sketch20.MapMode = "FlatFace"
sketch20.AttachmentOffset = App.Placement(V(0, 0, -9.375 * 25.4), App.Rotation())
sketch20.addGeometry(Part.LineSegment(V(195.3, -358.8, 0), V(195.3, -361.9, 0)), False)
sketch20.addGeometry(Part.LineSegment(V(195.3, -361.9, 0), V(568.3, -361.9, 0)), False)
sketch20.addGeometry(Part.LineSegment(V(568.3, -361.9, 0), V(568.3, -358.8, 0)), False)
sketch20.addGeometry(Part.LineSegment(V(568.3, -358.8, 0), V(195.3, -358.8, 0)), False)
sketch20.addConstraint(Sketcher.Constraint("Coincident", 0, 2, 1, 1))
sketch20.addConstraint(Sketcher.Constraint("Coincident", 1, 2, 2, 1))
sketch20.addConstraint(Sketcher.Constraint("Coincident", 2, 2, 3, 1))
sketch20.addConstraint(Sketcher.Constraint("Coincident", 3, 2, 0, 1))
sketch20.addConstraint(Sketcher.Constraint("Vertical", 0))
sketch20.addConstraint(Sketcher.Constraint("Horizontal", 1))
sketch20.addConstraint(Sketcher.Constraint("Vertical", 2))
sketch20.addConstraint(Sketcher.Constraint("Horizontal", 3))
sketch20.addConstraint(Sketcher.Constraint("DistanceX", 1, 1, 1, 2, Q("14.6875 in")))
sketch20.addConstraint(Sketcher.Constraint("DistanceY", 0, 2, 0, 1, Q("0.125 in")))
sketch20.addConstraint(Sketcher.Constraint("DistanceY", 0, 2, -1, 1, Q("14.25 in")))
sketch20.addConstraint(Sketcher.Constraint("DistanceX", -1, 1, 0, 2, Q("7.6875 in")))
sketch20.setExpression("Constraints[8]", "Params.sketch20_width")
sketch20.setExpression("Constraints[9]", "Params.sketch20_height")
pad20 = body.newObject("PartDesign::Pad", "Pad019")
pad20.Profile = sketch20
pad20.setExpression("Length", "Params.pad20_length")
body2 = doc.addObject("PartDesign::Body", "Body001")

sketch21 = body2.newObject("Sketcher::SketchObject", "Sketch020")
sketch21.AttachmentSupport = (doc.getObject("XY_Plane001"), [""])
sketch21.MapMode = "FlatFace"
sketch21.AttachmentOffset = App.Placement(V(0, 0, 0.625 * 25.4), App.Rotation())
sketch21.addGeometry(Part.LineSegment(V(584, 13, 0), V(584, 254, 0)), False)
sketch21.addGeometry(Part.LineSegment(V(584, 254, 0), V(76, 254, 0)), False)
sketch21.addGeometry(Part.LineSegment(V(76, 254, 0), V(76, -254, 0)), False)
sketch21.addGeometry(Part.LineSegment(V(76, -254, 0), V(318, -254, 0)), False)
sketch21.addGeometry(Part.LineSegment(V(318, -254, 0), V(584, 13, 0)), False)
sketch21.addConstraint(Sketcher.Constraint("Coincident", 0, 2, 1, 1))
sketch21.addConstraint(Sketcher.Constraint("Coincident", 1, 2, 2, 1))
sketch21.addConstraint(Sketcher.Constraint("Coincident", 2, 2, 3, 1))
sketch21.addConstraint(Sketcher.Constraint("Coincident", 3, 2, 4, 1))
sketch21.addConstraint(Sketcher.Constraint("Coincident", 4, 2, 0, 1))
sketch21.addConstraint(Sketcher.Constraint("Vertical", 0))
sketch21.addConstraint(Sketcher.Constraint("Horizontal", 1))
sketch21.addConstraint(Sketcher.Constraint("Vertical", 2))
sketch21.addConstraint(Sketcher.Constraint("Horizontal", 3))
sketch21.addConstraint(Sketcher.Constraint("Equal", 3, 0))
sketch21.addConstraint(Sketcher.Constraint("Equal", 1, 2))
sketch21.addConstraint(Sketcher.Constraint("DistanceX", 1, 2, 1, 1, Q("20 in")))
sketch21.addConstraint(Sketcher.Constraint("DistanceX", 3, 1, 3, 2, Q("9.5 in")))
sketch21.addConstraint(Sketcher.Constraint("DistanceX", -1, 1, 0, 2, Q("23 in")))
sketch21.addConstraint(Sketcher.Constraint("DistanceY", -1, 1, 0, 2, Q("10 in")))
sketch21.setExpression("Constraints[11]", "Params.sketch21_width")
sketch21.setExpression("Constraints[12]", "Params.sketch21_width2")
pad21 = body2.newObject("PartDesign::Pad", "Pad020")
pad21.Profile = sketch21
pad21.setExpression("Length", "Params.pad21_length")

doc.recompute()
